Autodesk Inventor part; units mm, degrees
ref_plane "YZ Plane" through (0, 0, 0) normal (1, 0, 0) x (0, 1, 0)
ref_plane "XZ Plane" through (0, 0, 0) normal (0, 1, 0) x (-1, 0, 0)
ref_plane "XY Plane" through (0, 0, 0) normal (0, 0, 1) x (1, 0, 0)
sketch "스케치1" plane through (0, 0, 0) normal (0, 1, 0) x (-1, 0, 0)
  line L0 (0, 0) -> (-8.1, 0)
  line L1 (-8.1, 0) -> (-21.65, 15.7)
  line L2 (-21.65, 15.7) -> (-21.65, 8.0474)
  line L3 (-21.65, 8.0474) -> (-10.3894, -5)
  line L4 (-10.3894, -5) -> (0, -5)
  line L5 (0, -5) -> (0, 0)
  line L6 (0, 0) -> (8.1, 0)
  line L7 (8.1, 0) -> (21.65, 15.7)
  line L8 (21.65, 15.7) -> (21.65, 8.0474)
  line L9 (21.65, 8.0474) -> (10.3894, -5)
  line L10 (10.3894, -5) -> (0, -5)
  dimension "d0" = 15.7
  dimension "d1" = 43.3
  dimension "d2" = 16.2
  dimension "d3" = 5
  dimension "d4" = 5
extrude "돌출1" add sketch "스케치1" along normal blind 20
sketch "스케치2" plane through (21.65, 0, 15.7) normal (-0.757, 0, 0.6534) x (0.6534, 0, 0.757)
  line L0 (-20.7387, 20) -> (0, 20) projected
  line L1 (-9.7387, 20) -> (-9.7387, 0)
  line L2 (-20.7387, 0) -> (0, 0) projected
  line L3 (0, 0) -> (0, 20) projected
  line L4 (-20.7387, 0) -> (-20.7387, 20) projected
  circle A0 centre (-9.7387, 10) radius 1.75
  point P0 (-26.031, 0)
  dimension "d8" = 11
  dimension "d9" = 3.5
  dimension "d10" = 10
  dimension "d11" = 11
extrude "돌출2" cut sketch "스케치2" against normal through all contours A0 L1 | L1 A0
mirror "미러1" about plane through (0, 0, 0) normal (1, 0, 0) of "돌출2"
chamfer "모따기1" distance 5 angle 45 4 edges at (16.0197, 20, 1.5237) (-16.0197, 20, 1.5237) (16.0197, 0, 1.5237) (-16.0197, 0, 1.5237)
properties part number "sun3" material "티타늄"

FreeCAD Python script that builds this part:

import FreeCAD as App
import Part
import Sketcher
from FreeCAD import Vector
Q = App.Units.Quantity


def edges_at(feature, points):
    """Names of the edges that pass closest to the given points."""
    edges = feature.Shape.Edges
    near = lambda p: min(range(len(edges)), key=lambda i: edges[i].distToShape(Part.Vertex(*p))[0])
    return sorted({f"Edge{near(p) + 1}" for p in points})

doc = App.newDocument("Part")
params = doc.addObject("Spreadsheet::Sheet", "Params")
for row, (alias, value) in enumerate([
    ("sketch1_width", "16.2 mm"),
    ("pad1_length", "20 mm"),
    ("sketch2_diameter", "3.5 mm"),
    ("chamfer_size", "5 mm"),
], start=1):
    params.set(f"A{row}", alias)
    params.set(f"B{row}", "=" + value)
    params.setAlias(f"B{row}", alias)

body = doc.addObject("PartDesign::Body", "Body")

# Sketch on XZ plane
sketch1 = body.newObject("Sketcher::SketchObject", "Sketch")
sketch1.AttachmentSupport = (doc.getObject("XZ_Plane"), [""])
sketch1.MapMode = "FlatFace"
sketch1.addGeometry(Part.LineSegment(Vector(10.3894, -5, 0), Vector(-10.3894, -5, 0)), False)
sketch1.addGeometry(Part.LineSegment(Vector(-10.3894, -5, 0), Vector(-21.65, 8.0474, 0)), False)
sketch1.addGeometry(Part.LineSegment(Vector(-21.65, 8.0474, 0), Vector(-21.65, 15.7, 0)), False)
sketch1.addGeometry(Part.LineSegment(Vector(-21.65, 15.7, 0), Vector(-8.1, 0, 0)), False)
sketch1.addGeometry(Part.LineSegment(Vector(-8.1, 0, 0), Vector(8.1, 0, 0)), False)
sketch1.addGeometry(Part.LineSegment(Vector(8.1, 0, 0), Vector(21.65, 15.7, 0)), False)
sketch1.addGeometry(Part.LineSegment(Vector(21.65, 15.7, 0), Vector(21.65, 8.0474, 0)), False)
sketch1.addGeometry(Part.LineSegment(Vector(21.65, 8.0474, 0), Vector(10.3894, -5, 0)), False)
sketch1.addConstraint(Sketcher.Constraint("Coincident", 0, 2, 1, 1))
sketch1.addConstraint(Sketcher.Constraint("Coincident", 1, 2, 2, 1))
sketch1.addConstraint(Sketcher.Constraint("Coincident", 2, 2, 3, 1))
sketch1.addConstraint(Sketcher.Constraint("Coincident", 3, 2, 4, 1))
sketch1.addConstraint(Sketcher.Constraint("Coincident", 4, 2, 5, 1))
sketch1.addConstraint(Sketcher.Constraint("Coincident", 5, 2, 6, 1))
sketch1.addConstraint(Sketcher.Constraint("Coincident", 6, 2, 7, 1))
sketch1.addConstraint(Sketcher.Constraint("Coincident", 7, 2, 0, 1))
sketch1.addConstraint(Sketcher.Constraint("Horizontal", 0))
sketch1.addConstraint(Sketcher.Constraint("Vertical", 2))
sketch1.addConstraint(Sketcher.Constraint("Horizontal", 4))
sketch1.addConstraint(Sketcher.Constraint("Vertical", 6))
sketch1.addConstraint(Sketcher.Constraint("Symmetric", 3, 2, 4, 2, -1, 1))
sketch1.addConstraint(Sketcher.Constraint("Symmetric", 2, 2, 5, 2, -2))
sketch1.addConstraint(Sketcher.Constraint("Parallel", 1, 3))
sketch1.addConstraint(Sketcher.Constraint("Parallel", 5, 7))
sketch1.addConstraint(Sketcher.Constraint("Horizontal", 1, 2, 6, 2))
sketch1.addConstraint(Sketcher.Constraint("DistanceX", 4, 1, 4, 2, Q("16.2 mm")))
sketch1.addConstraint(Sketcher.Constraint("DistanceY", 0, 2, -1, 1, Q("5 mm")))
sketch1.addConstraint(Sketcher.Constraint("DistanceY", -1, 1, 2, 2, Q("15.7 mm")))
sketch1.addConstraint(Sketcher.Constraint("DistanceX", 2, 2, 5, 2, Q("43.3 mm")))
sketch1.addConstraint(Sketcher.Constraint("DistanceX", 0, 2, 0, 1, Q("20.7788 mm")))
sketch1.setExpression("Constraints[17]", "Params.sketch1_width")
pad1 = body.newObject("PartDesign::Pad", "Pad")
pad1.Profile = sketch1
pad1.setExpression("Length", "Params.pad1_length")
pad1.Reversed = True

# Sketch on an angled plane
sketch2 = body.newObject("Sketcher::SketchObject", "Sketch001")
sketch2.Placement = App.Placement(Vector(21.65, 0, 15.7), App.Rotation(Vector(0.653406351, 0, 0.757007358), Vector(0, 1, 0), Vector(-0.757007358, 0, 0.653406351), "ZXY"))
sketch2.addGeometry(Part.Circle(Vector(-9.7387, 10, 0), Vector(0, 0, 1), 1.75), False)
sketch2.addConstraint(Sketcher.Constraint("Diameter", 0, Q("3.5 mm")))
sketch2.addConstraint(Sketcher.Constraint("DistanceY", -1, 1, 0, 3, Q("10 mm")))
sketch2.addConstraint(Sketcher.Constraint("DistanceX", 0, 3, -1, 1, Q("9.7387 mm")))
sketch2.setExpression("Constraints[0]", "Params.sketch2_diameter")
pocket1 = body.newObject("PartDesign::Pocket", "Pocket")
pocket1.Profile = sketch2
pocket1.Type = "ThroughAll"
doc.recompute()

mirrored = body.newObject("PartDesign::Mirrored", "Mirrored")
mirrored.Originals = [pocket1]
mirrored.MirrorPlane = (doc.getObject("YZ_Plane"), [""])
body.Tip = mirrored
doc.recompute()

chamfer = body.newObject("PartDesign::Chamfer", "Chamfer")
chamfer.Base = (mirrored, edges_at(mirrored, [
    (16.02, 20, 1.524),
    (-16.02, 20, 1.524),
    (16.02, 0, 1.524),
    (-16.02, 0, 1.524),
]))
chamfer.setExpression("Size", "Params.chamfer_size")

doc.recompute()
